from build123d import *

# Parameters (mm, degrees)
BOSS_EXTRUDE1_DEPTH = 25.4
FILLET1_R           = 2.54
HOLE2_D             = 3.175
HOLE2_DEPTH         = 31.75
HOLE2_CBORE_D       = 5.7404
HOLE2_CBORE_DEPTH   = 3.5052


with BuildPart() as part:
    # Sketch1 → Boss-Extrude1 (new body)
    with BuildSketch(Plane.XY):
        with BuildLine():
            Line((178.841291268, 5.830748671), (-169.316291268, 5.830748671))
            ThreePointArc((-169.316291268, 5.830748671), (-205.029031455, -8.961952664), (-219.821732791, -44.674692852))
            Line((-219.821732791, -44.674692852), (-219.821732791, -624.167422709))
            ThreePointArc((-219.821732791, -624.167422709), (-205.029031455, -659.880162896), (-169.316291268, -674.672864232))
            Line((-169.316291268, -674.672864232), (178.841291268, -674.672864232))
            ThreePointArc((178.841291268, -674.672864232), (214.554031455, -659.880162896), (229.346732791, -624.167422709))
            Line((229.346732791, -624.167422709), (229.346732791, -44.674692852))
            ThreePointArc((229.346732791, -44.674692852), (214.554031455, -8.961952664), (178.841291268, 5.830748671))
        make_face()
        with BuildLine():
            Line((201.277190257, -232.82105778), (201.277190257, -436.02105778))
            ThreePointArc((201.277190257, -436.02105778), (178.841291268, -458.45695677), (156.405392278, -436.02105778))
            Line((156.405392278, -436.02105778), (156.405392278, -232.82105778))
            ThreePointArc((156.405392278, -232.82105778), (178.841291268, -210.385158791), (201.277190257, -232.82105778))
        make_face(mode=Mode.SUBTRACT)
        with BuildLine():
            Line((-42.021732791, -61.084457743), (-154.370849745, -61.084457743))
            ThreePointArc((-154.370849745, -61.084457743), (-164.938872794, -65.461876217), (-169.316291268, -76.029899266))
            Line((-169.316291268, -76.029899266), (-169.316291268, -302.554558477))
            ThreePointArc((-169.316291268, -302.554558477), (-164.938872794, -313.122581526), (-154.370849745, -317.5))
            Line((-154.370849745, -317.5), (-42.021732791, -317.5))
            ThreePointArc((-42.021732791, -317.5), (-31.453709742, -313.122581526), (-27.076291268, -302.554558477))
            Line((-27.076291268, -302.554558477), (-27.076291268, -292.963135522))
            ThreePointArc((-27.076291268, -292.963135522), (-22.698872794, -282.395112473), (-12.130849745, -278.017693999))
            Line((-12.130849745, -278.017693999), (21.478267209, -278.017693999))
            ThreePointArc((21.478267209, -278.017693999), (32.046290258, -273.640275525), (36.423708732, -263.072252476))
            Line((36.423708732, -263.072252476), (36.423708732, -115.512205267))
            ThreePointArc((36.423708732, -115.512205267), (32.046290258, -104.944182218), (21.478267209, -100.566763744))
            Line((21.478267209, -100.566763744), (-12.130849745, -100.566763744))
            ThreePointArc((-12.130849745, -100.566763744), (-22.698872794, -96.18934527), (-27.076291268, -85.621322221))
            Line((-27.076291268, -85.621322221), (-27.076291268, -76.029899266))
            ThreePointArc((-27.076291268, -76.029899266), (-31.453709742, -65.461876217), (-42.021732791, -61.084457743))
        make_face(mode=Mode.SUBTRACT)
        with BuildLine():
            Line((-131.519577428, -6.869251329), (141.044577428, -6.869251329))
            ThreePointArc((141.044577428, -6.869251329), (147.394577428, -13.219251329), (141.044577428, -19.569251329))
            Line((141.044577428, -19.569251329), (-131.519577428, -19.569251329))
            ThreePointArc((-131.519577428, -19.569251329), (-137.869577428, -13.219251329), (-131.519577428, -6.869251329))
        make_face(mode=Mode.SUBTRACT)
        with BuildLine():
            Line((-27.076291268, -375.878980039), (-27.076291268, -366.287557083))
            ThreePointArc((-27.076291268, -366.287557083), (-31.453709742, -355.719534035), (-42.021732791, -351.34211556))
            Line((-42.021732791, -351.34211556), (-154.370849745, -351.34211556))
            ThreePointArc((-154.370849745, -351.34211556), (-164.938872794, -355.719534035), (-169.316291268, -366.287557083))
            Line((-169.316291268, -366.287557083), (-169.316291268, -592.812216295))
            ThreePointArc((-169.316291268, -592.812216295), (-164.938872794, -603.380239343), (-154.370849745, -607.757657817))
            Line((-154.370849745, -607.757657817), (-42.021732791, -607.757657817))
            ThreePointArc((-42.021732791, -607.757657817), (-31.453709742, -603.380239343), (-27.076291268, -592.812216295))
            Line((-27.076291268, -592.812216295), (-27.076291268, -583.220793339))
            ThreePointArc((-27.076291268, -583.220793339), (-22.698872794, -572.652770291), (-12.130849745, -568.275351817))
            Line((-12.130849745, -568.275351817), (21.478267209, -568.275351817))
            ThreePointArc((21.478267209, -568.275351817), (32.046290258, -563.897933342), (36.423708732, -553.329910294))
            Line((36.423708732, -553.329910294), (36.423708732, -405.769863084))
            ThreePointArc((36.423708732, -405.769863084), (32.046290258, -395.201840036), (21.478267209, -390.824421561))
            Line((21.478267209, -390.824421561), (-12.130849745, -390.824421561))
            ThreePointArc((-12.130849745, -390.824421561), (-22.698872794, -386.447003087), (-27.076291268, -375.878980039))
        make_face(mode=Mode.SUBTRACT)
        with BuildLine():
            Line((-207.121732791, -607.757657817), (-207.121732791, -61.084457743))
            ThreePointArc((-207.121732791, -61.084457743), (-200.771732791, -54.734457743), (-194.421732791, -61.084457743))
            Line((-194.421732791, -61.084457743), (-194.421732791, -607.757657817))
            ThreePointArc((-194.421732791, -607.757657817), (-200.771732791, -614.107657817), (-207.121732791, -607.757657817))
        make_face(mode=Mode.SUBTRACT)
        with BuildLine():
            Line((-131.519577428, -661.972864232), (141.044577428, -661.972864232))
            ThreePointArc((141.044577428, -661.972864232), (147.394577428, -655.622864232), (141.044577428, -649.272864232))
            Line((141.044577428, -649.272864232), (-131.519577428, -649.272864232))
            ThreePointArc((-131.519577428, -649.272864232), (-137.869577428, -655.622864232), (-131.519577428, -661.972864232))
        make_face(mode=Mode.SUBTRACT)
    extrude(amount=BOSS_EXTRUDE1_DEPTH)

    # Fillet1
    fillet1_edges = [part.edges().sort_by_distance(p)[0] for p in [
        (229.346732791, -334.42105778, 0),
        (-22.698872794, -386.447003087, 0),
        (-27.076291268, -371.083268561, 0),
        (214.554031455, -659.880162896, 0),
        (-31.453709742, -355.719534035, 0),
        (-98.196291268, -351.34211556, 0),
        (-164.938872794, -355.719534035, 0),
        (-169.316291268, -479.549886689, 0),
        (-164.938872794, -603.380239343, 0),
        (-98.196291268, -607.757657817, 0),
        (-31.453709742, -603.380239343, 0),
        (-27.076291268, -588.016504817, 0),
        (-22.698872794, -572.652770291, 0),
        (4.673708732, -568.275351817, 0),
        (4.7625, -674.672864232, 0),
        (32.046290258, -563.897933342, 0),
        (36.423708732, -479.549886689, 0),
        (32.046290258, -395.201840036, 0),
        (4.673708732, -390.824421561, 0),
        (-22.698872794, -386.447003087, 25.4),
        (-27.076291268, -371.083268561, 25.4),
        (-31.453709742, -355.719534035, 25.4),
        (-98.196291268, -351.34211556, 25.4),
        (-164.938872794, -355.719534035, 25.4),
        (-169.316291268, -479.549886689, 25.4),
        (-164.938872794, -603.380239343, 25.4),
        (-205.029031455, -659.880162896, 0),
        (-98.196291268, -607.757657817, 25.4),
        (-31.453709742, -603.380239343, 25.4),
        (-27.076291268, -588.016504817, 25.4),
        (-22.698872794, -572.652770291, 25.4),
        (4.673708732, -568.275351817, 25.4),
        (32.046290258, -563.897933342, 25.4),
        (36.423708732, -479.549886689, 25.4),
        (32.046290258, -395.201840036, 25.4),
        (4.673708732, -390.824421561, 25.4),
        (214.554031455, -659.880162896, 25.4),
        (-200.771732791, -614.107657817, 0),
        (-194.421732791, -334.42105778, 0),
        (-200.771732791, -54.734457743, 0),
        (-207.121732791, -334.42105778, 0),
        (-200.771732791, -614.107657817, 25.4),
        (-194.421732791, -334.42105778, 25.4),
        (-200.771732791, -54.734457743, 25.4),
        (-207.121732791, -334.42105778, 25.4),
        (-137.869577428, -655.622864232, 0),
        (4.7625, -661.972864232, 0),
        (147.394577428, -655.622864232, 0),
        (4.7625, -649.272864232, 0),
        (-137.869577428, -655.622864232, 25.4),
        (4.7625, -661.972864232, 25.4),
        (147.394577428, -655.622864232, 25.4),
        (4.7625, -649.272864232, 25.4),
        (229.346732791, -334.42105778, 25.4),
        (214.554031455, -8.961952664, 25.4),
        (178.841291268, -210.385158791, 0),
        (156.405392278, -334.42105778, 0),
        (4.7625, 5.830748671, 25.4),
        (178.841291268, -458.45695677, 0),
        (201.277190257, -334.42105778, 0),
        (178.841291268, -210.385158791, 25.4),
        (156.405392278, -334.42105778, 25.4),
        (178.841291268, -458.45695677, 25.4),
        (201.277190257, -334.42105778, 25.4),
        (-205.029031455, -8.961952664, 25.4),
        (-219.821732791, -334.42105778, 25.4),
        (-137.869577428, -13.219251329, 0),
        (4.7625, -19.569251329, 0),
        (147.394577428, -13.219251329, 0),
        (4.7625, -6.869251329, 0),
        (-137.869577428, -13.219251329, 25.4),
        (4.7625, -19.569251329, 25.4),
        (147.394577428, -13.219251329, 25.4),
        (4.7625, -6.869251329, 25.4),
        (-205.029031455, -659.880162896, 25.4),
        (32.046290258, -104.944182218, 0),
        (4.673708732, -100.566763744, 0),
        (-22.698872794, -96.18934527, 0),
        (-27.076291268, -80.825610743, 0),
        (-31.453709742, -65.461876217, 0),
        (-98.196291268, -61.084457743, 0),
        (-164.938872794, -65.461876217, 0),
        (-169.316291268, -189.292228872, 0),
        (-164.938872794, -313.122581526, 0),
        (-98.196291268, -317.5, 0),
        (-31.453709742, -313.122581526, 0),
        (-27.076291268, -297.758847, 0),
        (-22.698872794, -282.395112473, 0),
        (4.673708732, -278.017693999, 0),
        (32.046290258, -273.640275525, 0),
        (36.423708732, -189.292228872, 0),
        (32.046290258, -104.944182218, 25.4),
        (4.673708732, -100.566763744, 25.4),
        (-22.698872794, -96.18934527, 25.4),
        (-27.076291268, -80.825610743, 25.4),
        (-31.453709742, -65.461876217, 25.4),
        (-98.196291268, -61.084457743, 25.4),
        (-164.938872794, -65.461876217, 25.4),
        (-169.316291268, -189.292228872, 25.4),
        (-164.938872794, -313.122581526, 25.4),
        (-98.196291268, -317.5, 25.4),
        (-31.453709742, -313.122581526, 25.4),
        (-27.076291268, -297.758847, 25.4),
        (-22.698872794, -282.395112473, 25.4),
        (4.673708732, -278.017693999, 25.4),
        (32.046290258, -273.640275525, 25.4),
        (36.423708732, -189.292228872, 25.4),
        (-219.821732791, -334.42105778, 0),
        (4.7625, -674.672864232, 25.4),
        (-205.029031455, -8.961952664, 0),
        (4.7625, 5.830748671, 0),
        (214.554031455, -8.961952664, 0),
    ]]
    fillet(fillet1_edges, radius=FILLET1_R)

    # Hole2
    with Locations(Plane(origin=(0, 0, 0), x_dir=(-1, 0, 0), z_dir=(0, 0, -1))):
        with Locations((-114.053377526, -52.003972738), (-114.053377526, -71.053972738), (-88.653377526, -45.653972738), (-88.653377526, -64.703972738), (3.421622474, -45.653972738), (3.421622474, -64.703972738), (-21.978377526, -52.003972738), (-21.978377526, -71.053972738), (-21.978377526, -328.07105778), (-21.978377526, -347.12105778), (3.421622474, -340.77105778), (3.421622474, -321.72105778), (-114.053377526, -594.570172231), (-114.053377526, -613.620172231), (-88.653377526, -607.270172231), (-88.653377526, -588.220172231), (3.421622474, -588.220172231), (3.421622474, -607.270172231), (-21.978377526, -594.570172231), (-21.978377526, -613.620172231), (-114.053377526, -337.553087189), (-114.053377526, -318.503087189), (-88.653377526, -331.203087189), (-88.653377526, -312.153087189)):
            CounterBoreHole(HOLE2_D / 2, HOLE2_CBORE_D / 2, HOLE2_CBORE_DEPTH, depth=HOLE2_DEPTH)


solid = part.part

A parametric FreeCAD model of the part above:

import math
import FreeCAD as App
import Part
import Sketcher
from FreeCAD import Vector
Q = App.Units.Quantity


def edges_at(feature, points):
    """Names of the edges that pass closest to the given points."""
    edges = feature.Shape.Edges
    near = lambda p: min(range(len(edges)), key=lambda i: edges[i].distToShape(Part.Vertex(*p))[0])
    return sorted({f"Edge{near(p) + 1}" for p in points})

doc = App.newDocument("Part")
body = doc.addObject("PartDesign::Body", "Body")

# Sketch on XY plane
sketch1 = body.newObject("Sketcher::SketchObject", "Sketch")
sketch1.AttachmentSupport = (doc.getObject("XY_Plane"), [""])
sketch1.MapMode = "FlatFace"
sketch1.addGeometry([
    Part.LineSegment(Vector(179, 6, 0), Vector(-169, 6, 0)),  # 0
    Part.ArcOfCircle(Part.Circle(Vector(-169, -45, 0), Vector(0, 0, 1), 51), math.radians(90), math.radians(180)),  # 1
    Part.LineSegment(Vector(-220, -45, 0), Vector(-220, -624, 0)),  # 2
    Part.ArcOfCircle(Part.Circle(Vector(-169, -624, 0), Vector(0, 0, 1), 51), math.radians(-180), math.radians(-90)),  # 3
    Part.LineSegment(Vector(-169, -675, 0), Vector(179, -675, 0)),  # 4
    Part.ArcOfCircle(Part.Circle(Vector(179, -624, 0), Vector(0, 0, 1), 51), math.radians(-90), math.radians(0)),  # 5
    Part.LineSegment(Vector(229, -624, 0), Vector(229, -45, 0)),  # 6
    Part.ArcOfCircle(Part.Circle(Vector(179, -45, 0), Vector(0, 0, 1), 51), math.radians(0), math.radians(90)),  # 7
    Part.LineSegment(Vector(-27, -366, 0), Vector(-27, -376, 0)),  # 8
    Part.ArcOfCircle(Part.Circle(Vector(-12, -376, 0), Vector(0, 0, 1), 15), math.radians(180), math.radians(270)),  # 9
    Part.LineSegment(Vector(-12, -391, 0), Vector(21, -391, 0)),  # 10
    Part.ArcOfCircle(Part.Circle(Vector(21, -406, 0), Vector(0, 0, 1), 15), math.radians(0), math.radians(90)),  # 11
    Part.LineSegment(Vector(36, -406, 0), Vector(36, -553, 0)),  # 12
    Part.ArcOfCircle(Part.Circle(Vector(21, -553, 0), Vector(0, 0, 1), 15), math.radians(-90), math.radians(0)),  # 13
    Part.LineSegment(Vector(21, -568, 0), Vector(-12, -568, 0)),  # 14
    Part.ArcOfCircle(Part.Circle(Vector(-12, -583, 0), Vector(0, 0, 1), 15), math.radians(90), math.radians(180)),  # 15
    Part.LineSegment(Vector(-27, -583, 0), Vector(-27, -593, 0)),  # 16
    Part.ArcOfCircle(Part.Circle(Vector(-42, -593, 0), Vector(0, 0, 1), 15), math.radians(-90), math.radians(0)),  # 17
    Part.LineSegment(Vector(-42, -608, 0), Vector(-154, -608, 0)),  # 18
    Part.ArcOfCircle(Part.Circle(Vector(-154, -593, 0), Vector(0, 0, 1), 15), math.radians(180), math.radians(270)),  # 19
    Part.LineSegment(Vector(-169, -593, 0), Vector(-169, -366, 0)),  # 20
    Part.ArcOfCircle(Part.Circle(Vector(-154, -366, 0), Vector(0, 0, 1), 15), math.radians(90), math.radians(180)),  # 21
    Part.LineSegment(Vector(-154, -351, 0), Vector(-42, -351, 0)),  # 22
    Part.ArcOfCircle(Part.Circle(Vector(-42, -366, 0), Vector(0, 0, 1), 15), math.radians(0), math.radians(90)),  # 23
    Part.LineSegment(Vector(141, -662, 0), Vector(-132, -662, 0)),  # 24
    Part.ArcOfCircle(Part.Circle(Vector(-132, -656, 0), Vector(0, 0, 1), 6), math.radians(90), math.radians(270)),  # 25
    Part.LineSegment(Vector(-132, -649, 0), Vector(141, -649, 0)),  # 26
    Part.ArcOfCircle(Part.Circle(Vector(141, -656, 0), Vector(0, 0, 1), 6), math.radians(-90), math.radians(90)),  # 27
    Part.ArcOfCircle(Part.Circle(Vector(179, -233, 0), Vector(0, 0, 1), 22), math.radians(0), math.radians(180)),  # 28
    Part.LineSegment(Vector(201, -233, 0), Vector(201, -436, 0)),  # 29
    Part.ArcOfCircle(Part.Circle(Vector(179, -436, 0), Vector(0, 0, 1), 22), math.radians(180), math.radians(360)),  # 30
    Part.LineSegment(Vector(156, -436, 0), Vector(156, -233, 0)),  # 31
    Part.ArcOfCircle(Part.Circle(Vector(-201, -608, 0), Vector(0, 0, 1), 6), math.radians(180), math.radians(360)),  # 32
    Part.LineSegment(Vector(-207, -608, 0), Vector(-207, -61, 0)),  # 33
    Part.ArcOfCircle(Part.Circle(Vector(-201, -61, 0), Vector(0, 0, 1), 6), math.radians(0), math.radians(180)),  # 34
    Part.LineSegment(Vector(-194, -61, 0), Vector(-194, -608, 0)),  # 35
    Part.LineSegment(Vector(-154, -61, 0), Vector(-42, -61, 0)),  # 36
    Part.ArcOfCircle(Part.Circle(Vector(-42, -76, 0), Vector(0, 0, 1), 15), math.radians(0), math.radians(90)),  # 37
    Part.LineSegment(Vector(-27, -76, 0), Vector(-27, -86, 0)),  # 38
    Part.ArcOfCircle(Part.Circle(Vector(-12, -86, 0), Vector(0, 0, 1), 15), math.radians(180), math.radians(270)),  # 39
    Part.LineSegment(Vector(-12, -101, 0), Vector(21, -101, 0)),  # 40
    Part.ArcOfCircle(Part.Circle(Vector(21, -116, 0), Vector(0, 0, 1), 15), math.radians(0), math.radians(90)),  # 41
    Part.LineSegment(Vector(36, -116, 0), Vector(36, -263, 0)),  # 42
    Part.ArcOfCircle(Part.Circle(Vector(21, -263, 0), Vector(0, 0, 1), 15), math.radians(-90), math.radians(0)),  # 43
    Part.LineSegment(Vector(21, -278, 0), Vector(-12, -278, 0)),  # 44
    Part.ArcOfCircle(Part.Circle(Vector(-12, -293, 0), Vector(0, 0, 1), 15), math.radians(90), math.radians(180)),  # 45
    Part.LineSegment(Vector(-27, -293, 0), Vector(-27, -303, 0)),  # 46
    Part.ArcOfCircle(Part.Circle(Vector(-42, -303, 0), Vector(0, 0, 1), 15), math.radians(-90), math.radians(0)),  # 47
    Part.LineSegment(Vector(-42, -318, 0), Vector(-154, -318, 0)),  # 48
    Part.ArcOfCircle(Part.Circle(Vector(-154, -303, 0), Vector(0, 0, 1), 15), math.radians(180), math.radians(270)),  # 49
    Part.LineSegment(Vector(-169, -303, 0), Vector(-169, -76, 0)),  # 50
    Part.ArcOfCircle(Part.Circle(Vector(-154, -76, 0), Vector(0, 0, 1), 15), math.radians(90), math.radians(180)),  # 51
    Part.ArcOfCircle(Part.Circle(Vector(-132, -13, 0), Vector(0, 0, 1), 6), math.radians(90), math.radians(270)),  # 52
    Part.LineSegment(Vector(-132, -7, 0), Vector(141, -7, 0)),  # 53
    Part.ArcOfCircle(Part.Circle(Vector(141, -13, 0), Vector(0, 0, 1), 6), math.radians(-90), math.radians(90)),  # 54
    Part.LineSegment(Vector(141, -20, 0), Vector(-132, -20, 0)),  # 55
], False)
sketch1.addConstraint([
    Sketcher.Constraint("Tangent", 0, 2, 1, 1),
    Sketcher.Constraint("Tangent", 1, 2, 2, 1),
    Sketcher.Constraint("Tangent", 2, 2, 3, 1),
    Sketcher.Constraint("Tangent", 3, 2, 4, 1),
    Sketcher.Constraint("Tangent", 4, 2, 5, 1),
    Sketcher.Constraint("Tangent", 5, 2, 6, 1),
    Sketcher.Constraint("Tangent", 6, 2, 7, 1),
    Sketcher.Constraint("Tangent", 7, 2, 0, 1),
    Sketcher.Constraint("Tangent", 8, 2, 9, 1),
    Sketcher.Constraint("Tangent", 9, 2, 10, 1),
    Sketcher.Constraint("Tangent", 10, 2, 11, 2),
    Sketcher.Constraint("Tangent", 11, 1, 12, 1),
    Sketcher.Constraint("Tangent", 12, 2, 13, 2),
    Sketcher.Constraint("Tangent", 13, 1, 14, 1),
    Sketcher.Constraint("Tangent", 14, 2, 15, 1),
    Sketcher.Constraint("Tangent", 15, 2, 16, 1),
    Sketcher.Constraint("Tangent", 16, 2, 17, 2),
    Sketcher.Constraint("Tangent", 17, 1, 18, 1),
    Sketcher.Constraint("Tangent", 18, 2, 19, 2),
    Sketcher.Constraint("Tangent", 19, 1, 20, 1),
    Sketcher.Constraint("Tangent", 20, 2, 21, 2),
    Sketcher.Constraint("Tangent", 21, 1, 22, 1),
    Sketcher.Constraint("Tangent", 22, 2, 23, 2),
    Sketcher.Constraint("Tangent", 23, 1, 8, 1),
    Sketcher.Constraint("Tangent", 24, 2, 25, 2),
    Sketcher.Constraint("Tangent", 25, 1, 26, 1),
    Sketcher.Constraint("Tangent", 26, 2, 27, 2),
    Sketcher.Constraint("Tangent", 27, 1, 24, 1),
    Sketcher.Constraint("Tangent", 28, 1, 29, 1),
    Sketcher.Constraint("Tangent", 29, 2, 30, 2),
    Sketcher.Constraint("Tangent", 30, 1, 31, 1),
    Sketcher.Constraint("Tangent", 31, 2, 28, 2),
    Sketcher.Constraint("Tangent", 32, 1, 33, 1),
    Sketcher.Constraint("Tangent", 33, 2, 34, 2),
    Sketcher.Constraint("Tangent", 34, 1, 35, 1),
    Sketcher.Constraint("Tangent", 35, 2, 32, 2),
    Sketcher.Constraint("Tangent", 36, 2, 37, 2),
    Sketcher.Constraint("Tangent", 37, 1, 38, 1),
    Sketcher.Constraint("Tangent", 38, 2, 39, 1),
    Sketcher.Constraint("Tangent", 39, 2, 40, 1),
    Sketcher.Constraint("Tangent", 40, 2, 41, 2),
    Sketcher.Constraint("Tangent", 41, 1, 42, 1),
    Sketcher.Constraint("Tangent", 42, 2, 43, 2),
    Sketcher.Constraint("Tangent", 43, 1, 44, 1),
    Sketcher.Constraint("Tangent", 44, 2, 45, 1),
    Sketcher.Constraint("Tangent", 45, 2, 46, 1),
    Sketcher.Constraint("Tangent", 46, 2, 47, 2),
    Sketcher.Constraint("Tangent", 47, 1, 48, 1),
    Sketcher.Constraint("Tangent", 48, 2, 49, 2),
    Sketcher.Constraint("Tangent", 49, 1, 50, 1),
    Sketcher.Constraint("Tangent", 50, 2, 51, 2),
    Sketcher.Constraint("Tangent", 51, 1, 36, 1),
    Sketcher.Constraint("Tangent", 52, 1, 53, 1),
    Sketcher.Constraint("Tangent", 53, 2, 54, 2),
    Sketcher.Constraint("Tangent", 54, 1, 55, 1),
    Sketcher.Constraint("Tangent", 55, 2, 52, 2),
    Sketcher.Constraint("Horizontal", 0),
    Sketcher.Constraint("Vertical", 2),
    Sketcher.Constraint("Horizontal", 4),
    Sketcher.Constraint("Vertical", 6),
    Sketcher.Constraint("Vertical", 8),
    Sketcher.Constraint("Horizontal", 10),
    Sketcher.Constraint("Vertical", 12),
    Sketcher.Constraint("Horizontal", 14),
    Sketcher.Constraint("Vertical", 16),
    Sketcher.Constraint("Horizontal", 18),
    Sketcher.Constraint("Vertical", 20),
    Sketcher.Constraint("Horizontal", 22),
    Sketcher.Constraint("Horizontal", 24),
    Sketcher.Constraint("Horizontal", 26),
    Sketcher.Constraint("Vertical", 29),
    Sketcher.Constraint("Vertical", 31),
    Sketcher.Constraint("Vertical", 33),
    Sketcher.Constraint("Vertical", 35),
    Sketcher.Constraint("Horizontal", 36),
    Sketcher.Constraint("Vertical", 38),
    Sketcher.Constraint("Horizontal", 40),
    Sketcher.Constraint("Vertical", 42),
    Sketcher.Constraint("Horizontal", 44),
    Sketcher.Constraint("Vertical", 46),
    Sketcher.Constraint("Horizontal", 48),
    Sketcher.Constraint("Vertical", 50),
    Sketcher.Constraint("Horizontal", 53),
    Sketcher.Constraint("Horizontal", 55),
    Sketcher.Constraint("Equal", 1, 3),
    Sketcher.Constraint("Equal", 3, 5),
    Sketcher.Constraint("Equal", 5, 7),
    Sketcher.Constraint("Equal", 9, 11),
    Sketcher.Constraint("Equal", 11, 13),
    Sketcher.Constraint("Equal", 13, 15),
    Sketcher.Constraint("Equal", 15, 17),
    Sketcher.Constraint("Equal", 17, 19),
    Sketcher.Constraint("Equal", 19, 21),
    Sketcher.Constraint("Equal", 21, 23),
    Sketcher.Constraint("Equal", 27, 32),
    Sketcher.Constraint("Equal", 23, 37),
    Sketcher.Constraint("Equal", 37, 39),
    Sketcher.Constraint("Equal", 39, 41),
    Sketcher.Constraint("Equal", 41, 43),
    Sketcher.Constraint("Equal", 43, 45),
    Sketcher.Constraint("Equal", 45, 47),
    Sketcher.Constraint("Equal", 47, 49),
    Sketcher.Constraint("Equal", 49, 51),
    Sketcher.Constraint("Equal", 34, 52),
    Sketcher.Constraint("Horizontal", 32, 3, 17, 1),
    Sketcher.Constraint("Horizontal", 34, 1, 36, 2),
    Sketcher.Constraint("Vertical", 9, 3, 15, 3),
    Sketcher.Constraint("Vertical", 7, 3, 28, 3),
    Sketcher.Constraint("Vertical", 23, 3, 37, 3),
    Sketcher.Constraint("Vertical", 13, 3, 41, 3),
    Sketcher.Constraint("Vertical", 39, 3, 45, 3),
    Sketcher.Constraint("Vertical", 21, 3, 49, 3),
    Sketcher.Constraint("Vertical", 25, 3, 52, 3),
    Sketcher.Constraint("Vertical", 27, 3, 54, 3),
    Sketcher.Constraint("Vertical", 3, 2, 19, 1),
    Sketcher.Constraint("Equal", 8, 16),
    Sketcher.Constraint("Equal", 16, 38),
    Sketcher.Constraint("Equal", 12, 42),
    Sketcher.Constraint("Equal", 38, 46),
    Sketcher.Constraint("DistanceY", 29, 2, 29, 1, Q("8 in")),
    Sketcher.Constraint("Radius", 25, Q("0.25 in")),
    Sketcher.Constraint("DistanceY", 47, 1, -1, 1, Q("12.5 in")),
    Sketcher.Constraint("Radius", 28, Q("22.435899 mm")),
    Sketcher.Constraint("Radius", 1, Q("50.505442 mm")),
    Sketcher.Constraint("Radius", 9, Q("14.945442 mm")),
    Sketcher.Constraint("DistanceY", 33, 1, 33, 2, Q("546.6732 mm")),
    Sketcher.Constraint("DistanceY", 34, 3, -1, 1, Q("2.4048999 in")),
    Sketcher.Constraint("DistanceY", 2, 2, 2, 1, Q("579.49273 mm")),
    Sketcher.Constraint("DistanceX", 0, 2, 0, 1, Q("348.157583 mm")),
    Sketcher.Constraint("DistanceX", 10, 1, 10, 2, Q("33.609117 mm")),
    Sketcher.Constraint("DistanceX", 18, 2, 18, 1, Q("112.349117 mm")),
    Sketcher.Constraint("DistanceX", 24, 2, 24, 1, Q("272.564155 mm")),
    Sketcher.Constraint("DistanceY", 8, 2, 8, 1, Q("9.591423 mm")),
    Sketcher.Constraint("DistanceX", 1, 3, -1, 1, Q("169.316291 mm")),
    Sketcher.Constraint("DistanceY", 52, 3, -1, 1, Q("13.219251 mm")),
    Sketcher.Constraint("DistanceY", -1, 1, 0, 2, Q("5.830749 mm")),
    Sketcher.Constraint("DistanceX", 25, 3, -1, 1, Q("131.519577 mm")),
    Sketcher.Constraint("DistanceY", 25, 3, -1, 1, Q("655.622864 mm")),
    Sketcher.Constraint("DistanceY", 28, 3, -1, 1, Q("232.821058 mm")),
    Sketcher.Constraint("DistanceX", 32, 3, -1, 1, Q("200.771733 mm")),
])
pad1 = body.newObject("PartDesign::Pad", "Pad")
pad1.Profile = sketch1
pad1.Length = Q("1 in")
doc.recompute()

fillet = body.newObject("PartDesign::Fillet", "Fillet")
fillet.Base = (pad1, edges_at(pad1, [
    (229.347, -334.421, 0),
    (-22.699, -386.447, 0),
    (-27.076, -371.083, 0),
    (214.554, -659.88, 0),
    (-31.454, -355.72, 0),
    (-98.196, -351.342, 0),
    (-164.939, -355.72, 0),
    (-169.316, -479.55, 0),
    (-164.939, -603.38, 0),
    (-98.196, -607.758, 0),
    (-31.454, -603.38, 0),
    (-27.076, -588.017, 0),
    (-22.699, -572.653, 0),
    (4.674, -568.275, 0),
    (4.763, -674.673, 0),
    (32.046, -563.898, 0),
    (36.424, -479.55, 0),
    (32.046, -395.202, 0),
    (4.674, -390.824, 0),
    (-22.699, -386.447, 25.4),
    (-27.076, -371.083, 25.4),
    (-31.454, -355.72, 25.4),
    (-98.196, -351.342, 25.4),
    (-164.939, -355.72, 25.4),
    (-169.316, -479.55, 25.4),
    (-164.939, -603.38, 25.4),
    (-205.029, -659.88, 0),
    (-98.196, -607.758, 25.4),
    (-31.454, -603.38, 25.4),
    (-27.076, -588.017, 25.4),
    (-22.699, -572.653, 25.4),
    (4.674, -568.275, 25.4),
    (32.046, -563.898, 25.4),
    (36.424, -479.55, 25.4),
    (32.046, -395.202, 25.4),
    (4.674, -390.824, 25.4),
    (214.554, -659.88, 25.4),
    (-200.772, -614.108, 0),
    (-194.422, -334.421, 0),
    (-200.772, -54.734, 0),
    (-207.122, -334.421, 0),
    (-200.772, -614.108, 25.4),
    (-194.422, -334.421, 25.4),
    (-200.772, -54.734, 25.4),
    (-207.122, -334.421, 25.4),
    (-137.87, -655.623, 0),
    (4.763, -661.973, 0),
    (147.395, -655.623, 0),
    (4.763, -649.273, 0),
    (-137.87, -655.623, 25.4),
    (4.763, -661.973, 25.4),
    (147.395, -655.623, 25.4),
    (4.763, -649.273, 25.4),
    (229.347, -334.421, 25.4),
    (214.554, -8.962, 25.4),
    (178.841, -210.385, 0),
    (156.405, -334.421, 0),
    (4.763, 5.831, 25.4),
    (178.841, -458.457, 0),
    (201.277, -334.421, 0),
    (178.841, -210.385, 25.4),
    (156.405, -334.421, 25.4),
    (178.841, -458.457, 25.4),
    (201.277, -334.421, 25.4),
    (-205.029, -8.962, 25.4),
    (-219.822, -334.421, 25.4),
    (-137.87, -13.219, 0),
    (4.763, -19.569, 0),
    (147.395, -13.219, 0),
    (4.763, -6.869, 0),
    (-137.87, -13.219, 25.4),
    (4.763, -19.569, 25.4),
    (147.395, -13.219, 25.4),
    (4.763, -6.869, 25.4),
    (-205.029, -659.88, 25.4),
    (32.046, -104.944, 0),
    (4.674, -100.567, 0),
    (-22.699, -96.189, 0),
    (-27.076, -80.826, 0),
    (-31.454, -65.462, 0),
    (-98.196, -61.084, 0),
    (-164.939, -65.462, 0),
    (-169.316, -189.292, 0),
    (-164.939, -313.123, 0),
    (-98.196, -317.5, 0),
    (-31.454, -313.123, 0),
    (-27.076, -297.759, 0),
    (-22.699, -282.395, 0),
    (4.674, -278.018, 0),
    (32.046, -273.64, 0),
    (36.424, -189.292, 0),
    (32.046, -104.944, 25.4),
    (4.674, -100.567, 25.4),
    (-22.699, -96.189, 25.4),
    (-27.076, -80.826, 25.4),
    (-31.454, -65.462, 25.4),
    (-98.196, -61.084, 25.4),
    (-164.939, -65.462, 25.4),
    (-169.316, -189.292, 25.4),
    (-164.939, -313.123, 25.4),
    (-98.196, -317.5, 25.4),
    (-31.454, -313.123, 25.4),
    (-27.076, -297.759, 25.4),
    (-22.699, -282.395, 25.4),
    (4.674, -278.018, 25.4),
    (32.046, -273.64, 25.4),
    (36.424, -189.292, 25.4),
    (-219.822, -334.421, 0),
    (4.763, -674.673, 25.4),
    (-205.029, -8.962, 0),
    (4.763, 5.831, 0),
    (214.554, -8.962, 0),
]))
fillet.Radius = Q("0.1 in")

# Sketch on XY plane
sketch2 = body.newObject("Sketcher::SketchObject", "Sketch001")
sketch2.AttachmentSupport = (doc.getObject("XY_Plane"), [""])
sketch2.MapMode = "FlatFace"
sketch2.addGeometry([
    Part.Circle(Vector(114.1, -52, 0), Vector(0, 0, 1), 1.6),  # 0
    Part.Circle(Vector(114.1, -71.1, 0), Vector(0, 0, 1), 1.6),  # 1
    Part.Circle(Vector(88.7, -45.7, 0), Vector(0, 0, 1), 1.6),  # 2
    Part.Circle(Vector(88.7, -64.7, 0), Vector(0, 0, 1), 1.6),  # 3
    Part.Circle(Vector(-3.4, -45.7, 0), Vector(0, 0, 1), 1.6),  # 4
    Part.Circle(Vector(-3.4, -64.7, 0), Vector(0, 0, 1), 1.6),  # 5
    Part.Circle(Vector(22, -52, 0), Vector(0, 0, 1), 1.6),  # 6
    Part.Circle(Vector(22, -71.1, 0), Vector(0, 0, 1), 1.6),  # 7
    Part.Circle(Vector(22, -328.1, 0), Vector(0, 0, 1), 1.6),  # 8
    Part.Circle(Vector(22, -347.1, 0), Vector(0, 0, 1), 1.6),  # 9
    Part.Circle(Vector(-3.4, -340.8, 0), Vector(0, 0, 1), 1.6),  # 10
    Part.Circle(Vector(-3.4, -321.7, 0), Vector(0, 0, 1), 1.6),  # 11
    Part.Circle(Vector(114.1, -594.6, 0), Vector(0, 0, 1), 1.6),  # 12
    Part.Circle(Vector(114.1, -613.6, 0), Vector(0, 0, 1), 1.6),  # 13
    Part.Circle(Vector(88.7, -607.3, 0), Vector(0, 0, 1), 1.6),  # 14
    Part.Circle(Vector(88.7, -588.2, 0), Vector(0, 0, 1), 1.6),  # 15
    Part.Circle(Vector(-3.4, -588.2, 0), Vector(0, 0, 1), 1.6),  # 16
    Part.Circle(Vector(-3.4, -607.3, 0), Vector(0, 0, 1), 1.6),  # 17
    Part.Circle(Vector(22, -594.6, 0), Vector(0, 0, 1), 1.6),  # 18
    Part.Circle(Vector(22, -613.6, 0), Vector(0, 0, 1), 1.6),  # 19
    Part.Circle(Vector(114.1, -337.6, 0), Vector(0, 0, 1), 1.6),  # 20
    Part.Circle(Vector(114.1, -318.5, 0), Vector(0, 0, 1), 1.6),  # 21
    Part.Circle(Vector(88.7, -331.2, 0), Vector(0, 0, 1), 1.6),  # 22
    Part.Circle(Vector(88.7, -312.2, 0), Vector(0, 0, 1), 1.6),  # 23
], False)
sketch2.addConstraint([
    Sketcher.Constraint("Equal", 0, 1),
    Sketcher.Constraint("Equal", 1, 2),
    Sketcher.Constraint("Equal", 2, 3),
    Sketcher.Constraint("Equal", 3, 4),
    Sketcher.Constraint("Equal", 4, 5),
    Sketcher.Constraint("Equal", 5, 6),
    Sketcher.Constraint("Equal", 6, 7),
    Sketcher.Constraint("Equal", 7, 8),
    Sketcher.Constraint("Equal", 8, 9),
    Sketcher.Constraint("Equal", 9, 10),
    Sketcher.Constraint("Equal", 10, 11),
    Sketcher.Constraint("Equal", 11, 12),
    Sketcher.Constraint("Equal", 12, 13),
    Sketcher.Constraint("Equal", 13, 14),
    Sketcher.Constraint("Equal", 14, 15),
    Sketcher.Constraint("Equal", 15, 16),
    Sketcher.Constraint("Equal", 16, 17),
    Sketcher.Constraint("Equal", 17, 18),
    Sketcher.Constraint("Equal", 18, 19),
    Sketcher.Constraint("Equal", 19, 20),
    Sketcher.Constraint("Equal", 20, 21),
    Sketcher.Constraint("Equal", 21, 22),
    Sketcher.Constraint("Equal", 22, 23),
    Sketcher.Constraint("Horizontal", 2, 3, 4, 3),
    Sketcher.Constraint("Horizontal", 3, 3, 5, 3),
    Sketcher.Constraint("Horizontal", 0, 3, 6, 3),
    Sketcher.Constraint("Horizontal", 1, 3, 7, 3),
    Sketcher.Constraint("Horizontal", 15, 3, 16, 3),
    Sketcher.Constraint("Horizontal", 14, 3, 17, 3),
    Sketcher.Constraint("Horizontal", 12, 3, 18, 3),
    Sketcher.Constraint("Horizontal", 13, 3, 19, 3),
    Sketcher.Constraint("Vertical", 0, 3, 1, 3),
    Sketcher.Constraint("Vertical", 2, 3, 3, 3),
    Sketcher.Constraint("Vertical", 4, 3, 5, 3),
    Sketcher.Constraint("Vertical", 6, 3, 7, 3),
    Sketcher.Constraint("Vertical", 7, 3, 8, 3),
    Sketcher.Constraint("Vertical", 8, 3, 9, 3),
    Sketcher.Constraint("Vertical", 5, 3, 10, 3),
    Sketcher.Constraint("Vertical", 10, 3, 11, 3),
    Sketcher.Constraint("Vertical", 1, 3, 12, 3),
    Sketcher.Constraint("Vertical", 12, 3, 13, 3),
    Sketcher.Constraint("Vertical", 3, 3, 14, 3),
    Sketcher.Constraint("Vertical", 14, 3, 15, 3),
    Sketcher.Constraint("Vertical", 11, 3, 16, 3),
    Sketcher.Constraint("Vertical", 16, 3, 17, 3),
    Sketcher.Constraint("Vertical", 9, 3, 18, 3),
    Sketcher.Constraint("Vertical", 18, 3, 19, 3),
    Sketcher.Constraint("Vertical", 13, 3, 20, 3),
    Sketcher.Constraint("Vertical", 20, 3, 21, 3),
    Sketcher.Constraint("Vertical", 15, 3, 22, 3),
    Sketcher.Constraint("Vertical", 22, 3, 23, 3),
    Sketcher.Constraint("Diameter", 0, Q("0.125 in")),
    Sketcher.Constraint("DistanceX", 2, 3, 0, 3, Q("1 in")),
    Sketcher.Constraint("DistanceY", 1, 3, 2, 3, Q("1 in")),
    Sketcher.Constraint("DistanceX", 4, 3, 6, 3, Q("1 in")),
    Sketcher.Constraint("DistanceY", 9, 3, 11, 3, Q("1 in")),
    Sketcher.Constraint("DistanceY", 13, 3, 15, 3, Q("1 in")),
    Sketcher.Constraint("DistanceY", 20, 3, 23, 3, Q("1 in")),
    Sketcher.Constraint("DistanceY", 3, 3, 0, 3, Q("0.5 in")),
    Sketcher.Constraint("DistanceY", 10, 3, 8, 3, Q("0.5 in")),
    Sketcher.Constraint("DistanceY", 14, 3, 12, 3, Q("0.5 in")),
    Sketcher.Constraint("DistanceY", 22, 3, 21, 3, Q("0.5 in")),
    Sketcher.Constraint("DistanceY", 1, 3, 0, 3, Q("0.75 in")),
    Sketcher.Constraint("DistanceY", 9, 3, 8, 3, Q("0.75 in")),
    Sketcher.Constraint("DistanceY", 13, 3, 12, 3, Q("0.75 in")),
    Sketcher.Constraint("DistanceY", 20, 3, 21, 3, Q("0.75 in")),
    Sketcher.Constraint("DistanceX", 4, 3, 2, 3, Q("3.625 in")),
    Sketcher.Constraint("DistanceY", 12, 3, 1, 3, Q("523.516199 mm")),
    Sketcher.Constraint("DistanceY", 20, 3, 8, 3, Q("9.482029 mm")),
    Sketcher.Constraint("DistanceX", -1, 1, 0, 3, Q("114.053378 mm")),
    Sketcher.Constraint("DistanceY", 0, 3, -1, 1, Q("52.003973 mm")),
    Sketcher.Constraint("DistanceY", 8, 3, -1, 1, Q("328.071058 mm")),
])
doc.recompute()
hole = body.newObject("PartDesign::Hole", "Hole")
hole.Profile = sketch2
hole.ThreadType = "None"
hole.Diameter = Q("0.125 in")
hole.DepthType = "Dimension"
hole.Depth = Q("1.25 in")
hole.DrillPoint = "Flat"
hole.HoleCutType = "Counterbore"
hole.HoleCutDiameter = Q("0.226 in")
hole.HoleCutDepth = Q("0.138 in")
hole.Reversed = True

doc.recompute()
